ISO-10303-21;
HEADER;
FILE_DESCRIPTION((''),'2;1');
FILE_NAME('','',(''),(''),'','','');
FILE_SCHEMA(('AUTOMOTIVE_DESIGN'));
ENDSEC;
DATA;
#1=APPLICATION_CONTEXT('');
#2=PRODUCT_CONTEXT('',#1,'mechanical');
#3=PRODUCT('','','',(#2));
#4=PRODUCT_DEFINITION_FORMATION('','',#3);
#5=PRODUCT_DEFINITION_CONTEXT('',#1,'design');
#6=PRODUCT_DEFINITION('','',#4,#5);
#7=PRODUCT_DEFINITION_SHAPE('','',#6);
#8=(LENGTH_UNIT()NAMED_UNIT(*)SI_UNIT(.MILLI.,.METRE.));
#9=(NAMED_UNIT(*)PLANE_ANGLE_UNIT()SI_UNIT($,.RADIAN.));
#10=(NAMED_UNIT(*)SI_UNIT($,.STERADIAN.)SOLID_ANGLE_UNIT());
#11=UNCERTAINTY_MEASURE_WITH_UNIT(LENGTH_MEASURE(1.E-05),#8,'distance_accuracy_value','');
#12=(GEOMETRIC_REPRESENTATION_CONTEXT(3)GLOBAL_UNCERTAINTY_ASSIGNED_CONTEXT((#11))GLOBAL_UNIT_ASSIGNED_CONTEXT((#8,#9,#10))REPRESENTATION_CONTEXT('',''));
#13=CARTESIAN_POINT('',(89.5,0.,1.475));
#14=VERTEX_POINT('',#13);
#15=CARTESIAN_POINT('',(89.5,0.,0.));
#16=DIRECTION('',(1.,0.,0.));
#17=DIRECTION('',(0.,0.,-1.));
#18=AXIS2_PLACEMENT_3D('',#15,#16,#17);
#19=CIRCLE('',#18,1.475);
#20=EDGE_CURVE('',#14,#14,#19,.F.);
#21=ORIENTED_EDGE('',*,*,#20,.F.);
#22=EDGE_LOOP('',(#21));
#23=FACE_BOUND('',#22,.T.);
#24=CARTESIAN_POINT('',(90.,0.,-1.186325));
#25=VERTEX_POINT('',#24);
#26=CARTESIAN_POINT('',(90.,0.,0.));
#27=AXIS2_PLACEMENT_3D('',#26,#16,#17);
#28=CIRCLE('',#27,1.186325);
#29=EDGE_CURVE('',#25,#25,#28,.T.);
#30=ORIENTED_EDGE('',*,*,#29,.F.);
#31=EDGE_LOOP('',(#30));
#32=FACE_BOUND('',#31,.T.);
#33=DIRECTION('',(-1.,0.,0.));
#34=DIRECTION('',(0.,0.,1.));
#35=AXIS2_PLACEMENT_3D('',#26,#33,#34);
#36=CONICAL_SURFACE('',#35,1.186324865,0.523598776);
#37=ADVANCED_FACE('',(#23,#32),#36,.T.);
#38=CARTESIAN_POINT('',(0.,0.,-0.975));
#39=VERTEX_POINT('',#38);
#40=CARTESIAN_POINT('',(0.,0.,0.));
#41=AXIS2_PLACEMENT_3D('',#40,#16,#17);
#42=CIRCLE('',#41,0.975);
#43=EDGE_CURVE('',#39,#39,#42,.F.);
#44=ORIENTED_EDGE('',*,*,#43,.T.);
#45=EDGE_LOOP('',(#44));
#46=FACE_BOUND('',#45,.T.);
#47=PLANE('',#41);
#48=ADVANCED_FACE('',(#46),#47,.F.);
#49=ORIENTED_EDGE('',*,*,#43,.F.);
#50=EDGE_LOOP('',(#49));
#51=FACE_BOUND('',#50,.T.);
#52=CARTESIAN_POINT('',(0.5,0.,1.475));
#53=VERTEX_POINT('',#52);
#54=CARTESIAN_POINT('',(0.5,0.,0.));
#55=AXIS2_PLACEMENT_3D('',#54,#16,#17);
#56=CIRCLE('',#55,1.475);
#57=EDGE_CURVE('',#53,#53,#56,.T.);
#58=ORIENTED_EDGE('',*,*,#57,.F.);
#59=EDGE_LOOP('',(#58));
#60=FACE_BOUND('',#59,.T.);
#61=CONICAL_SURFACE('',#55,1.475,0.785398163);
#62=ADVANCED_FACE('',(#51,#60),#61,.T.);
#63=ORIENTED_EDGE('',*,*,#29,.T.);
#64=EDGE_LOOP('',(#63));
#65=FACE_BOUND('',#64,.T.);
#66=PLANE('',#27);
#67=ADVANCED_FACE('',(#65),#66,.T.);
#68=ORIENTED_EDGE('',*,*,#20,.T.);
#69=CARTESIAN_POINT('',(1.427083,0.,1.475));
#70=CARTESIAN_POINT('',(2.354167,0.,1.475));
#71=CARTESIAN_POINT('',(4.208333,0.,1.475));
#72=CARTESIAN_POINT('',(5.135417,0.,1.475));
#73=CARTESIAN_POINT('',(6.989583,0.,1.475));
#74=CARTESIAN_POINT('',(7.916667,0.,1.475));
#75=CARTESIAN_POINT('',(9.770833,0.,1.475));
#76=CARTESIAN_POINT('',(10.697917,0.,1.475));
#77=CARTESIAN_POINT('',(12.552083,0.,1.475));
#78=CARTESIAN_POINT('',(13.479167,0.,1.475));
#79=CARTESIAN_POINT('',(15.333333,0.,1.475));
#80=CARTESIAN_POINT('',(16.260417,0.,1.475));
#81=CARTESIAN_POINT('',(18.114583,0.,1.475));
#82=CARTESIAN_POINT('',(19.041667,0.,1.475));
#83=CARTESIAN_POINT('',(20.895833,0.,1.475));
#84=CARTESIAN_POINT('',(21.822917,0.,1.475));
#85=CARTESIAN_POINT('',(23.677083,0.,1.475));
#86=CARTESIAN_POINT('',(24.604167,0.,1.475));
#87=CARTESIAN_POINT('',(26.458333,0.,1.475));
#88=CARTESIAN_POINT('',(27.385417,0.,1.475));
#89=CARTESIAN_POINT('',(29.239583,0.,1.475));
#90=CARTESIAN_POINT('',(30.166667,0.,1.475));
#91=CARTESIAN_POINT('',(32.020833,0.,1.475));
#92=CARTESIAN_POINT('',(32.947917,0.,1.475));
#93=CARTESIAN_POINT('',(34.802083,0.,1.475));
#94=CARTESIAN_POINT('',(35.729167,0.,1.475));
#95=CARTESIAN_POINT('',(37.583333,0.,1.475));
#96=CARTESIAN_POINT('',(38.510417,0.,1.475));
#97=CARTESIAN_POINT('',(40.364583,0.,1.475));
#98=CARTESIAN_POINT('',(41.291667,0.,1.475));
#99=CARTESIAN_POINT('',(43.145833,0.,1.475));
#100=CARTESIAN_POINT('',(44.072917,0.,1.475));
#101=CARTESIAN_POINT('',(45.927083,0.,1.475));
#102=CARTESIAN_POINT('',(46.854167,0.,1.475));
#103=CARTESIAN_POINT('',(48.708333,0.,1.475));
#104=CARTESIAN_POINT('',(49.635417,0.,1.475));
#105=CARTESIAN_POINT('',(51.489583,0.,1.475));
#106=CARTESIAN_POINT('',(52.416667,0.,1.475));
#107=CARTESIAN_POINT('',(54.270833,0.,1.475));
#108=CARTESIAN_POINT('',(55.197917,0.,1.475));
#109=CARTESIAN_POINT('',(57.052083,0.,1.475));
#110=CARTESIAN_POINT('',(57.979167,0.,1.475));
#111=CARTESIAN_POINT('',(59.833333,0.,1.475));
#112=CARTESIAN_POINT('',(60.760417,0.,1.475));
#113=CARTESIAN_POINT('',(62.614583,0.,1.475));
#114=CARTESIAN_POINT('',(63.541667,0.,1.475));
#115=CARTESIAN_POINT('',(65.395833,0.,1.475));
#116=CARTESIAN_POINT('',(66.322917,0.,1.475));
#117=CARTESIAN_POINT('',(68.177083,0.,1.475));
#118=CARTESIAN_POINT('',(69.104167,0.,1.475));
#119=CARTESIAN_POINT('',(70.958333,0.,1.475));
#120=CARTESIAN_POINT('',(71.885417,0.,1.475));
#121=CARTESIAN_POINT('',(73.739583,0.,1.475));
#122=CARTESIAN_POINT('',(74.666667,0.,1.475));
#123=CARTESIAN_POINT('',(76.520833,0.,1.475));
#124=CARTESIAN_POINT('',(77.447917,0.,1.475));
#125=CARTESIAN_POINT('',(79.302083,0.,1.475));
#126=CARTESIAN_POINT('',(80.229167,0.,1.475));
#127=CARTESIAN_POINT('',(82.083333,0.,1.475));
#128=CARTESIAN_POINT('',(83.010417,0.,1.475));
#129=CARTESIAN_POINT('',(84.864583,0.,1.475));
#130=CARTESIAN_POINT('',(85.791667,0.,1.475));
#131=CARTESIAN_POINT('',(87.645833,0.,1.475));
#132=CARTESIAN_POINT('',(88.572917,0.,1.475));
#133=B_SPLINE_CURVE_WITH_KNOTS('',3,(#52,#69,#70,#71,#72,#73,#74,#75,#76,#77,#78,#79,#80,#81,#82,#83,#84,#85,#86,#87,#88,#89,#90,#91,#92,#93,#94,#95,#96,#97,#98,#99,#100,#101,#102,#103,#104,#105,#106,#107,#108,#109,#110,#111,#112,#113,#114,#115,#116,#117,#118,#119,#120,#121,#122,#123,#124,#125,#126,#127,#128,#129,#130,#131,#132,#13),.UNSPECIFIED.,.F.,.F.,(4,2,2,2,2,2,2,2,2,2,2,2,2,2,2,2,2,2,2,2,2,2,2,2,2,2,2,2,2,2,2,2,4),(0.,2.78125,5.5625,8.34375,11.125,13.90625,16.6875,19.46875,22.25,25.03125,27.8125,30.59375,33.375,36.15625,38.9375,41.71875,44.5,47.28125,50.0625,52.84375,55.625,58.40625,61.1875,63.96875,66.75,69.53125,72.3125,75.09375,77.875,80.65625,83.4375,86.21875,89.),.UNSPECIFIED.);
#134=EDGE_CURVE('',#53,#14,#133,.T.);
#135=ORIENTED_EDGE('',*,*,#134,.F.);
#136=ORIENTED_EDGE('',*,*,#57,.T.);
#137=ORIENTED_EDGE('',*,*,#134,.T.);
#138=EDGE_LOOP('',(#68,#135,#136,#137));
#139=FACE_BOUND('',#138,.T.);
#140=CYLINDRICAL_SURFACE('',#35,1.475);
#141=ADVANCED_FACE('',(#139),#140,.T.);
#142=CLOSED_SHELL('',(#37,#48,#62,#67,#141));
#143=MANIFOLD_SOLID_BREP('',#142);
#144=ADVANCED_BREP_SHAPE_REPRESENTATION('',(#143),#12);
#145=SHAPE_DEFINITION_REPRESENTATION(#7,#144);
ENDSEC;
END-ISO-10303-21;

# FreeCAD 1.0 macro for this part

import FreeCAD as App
import Part
import Sketcher
Q = App.Units.Quantity


def edges_at(feature, points):
    """Names of the edges that pass closest to the given points."""
    edges = feature.Shape.Edges
    near = lambda p: min(range(len(edges)), key=lambda i: edges[i].distToShape(Part.Vertex(*p))[0])
    return sorted({f"Edge{near(p) + 1}" for p in points})

doc = App.newDocument("Part")
body = doc.addObject("PartDesign::Body", "Body")

# Sketch on YZ plane
sketch1 = doc.addObject("Sketcher::SketchObject", "Sketch")
body.addObject(sketch1)
sketch1.AttachmentSupport = (doc.YZ_Plane, [""])
sketch1.MapMode = "FlatFace"
sketch1.addGeometry(Part.Circle(App.Vector(0, 0, 0), App.Vector(0, 0, 1), 1.475), False)
sketch1.addConstraint(Sketcher.Constraint("Coincident", 0, 3, -1, 1))
sketch1.addConstraint(Sketcher.Constraint("Diameter", 0, Q("2.95 mm")))
pad1 = doc.addObject("PartDesign::Pad", "Pad")
body.addObject(pad1)
pad1.Profile = sketch1
pad1.Length = 90
doc.recompute()

chamfer = doc.addObject("PartDesign::Chamfer", "Chamfer")
body.addObject(chamfer)
chamfer.Base = (pad1, edges_at(pad1, [(90, 0, -1.475)]))
chamfer.ChamferType = "Two distances"
chamfer.Size = 0.5
chamfer.Size2 = 0.288675
doc.recompute()

chamfer2 = doc.addObject("PartDesign::Chamfer", "Chamfer001")
body.addObject(chamfer2)
chamfer2.Base = (chamfer, edges_at(chamfer, [(0, 0, -1.475)]))
chamfer2.Size = 0.5

doc.recompute()
